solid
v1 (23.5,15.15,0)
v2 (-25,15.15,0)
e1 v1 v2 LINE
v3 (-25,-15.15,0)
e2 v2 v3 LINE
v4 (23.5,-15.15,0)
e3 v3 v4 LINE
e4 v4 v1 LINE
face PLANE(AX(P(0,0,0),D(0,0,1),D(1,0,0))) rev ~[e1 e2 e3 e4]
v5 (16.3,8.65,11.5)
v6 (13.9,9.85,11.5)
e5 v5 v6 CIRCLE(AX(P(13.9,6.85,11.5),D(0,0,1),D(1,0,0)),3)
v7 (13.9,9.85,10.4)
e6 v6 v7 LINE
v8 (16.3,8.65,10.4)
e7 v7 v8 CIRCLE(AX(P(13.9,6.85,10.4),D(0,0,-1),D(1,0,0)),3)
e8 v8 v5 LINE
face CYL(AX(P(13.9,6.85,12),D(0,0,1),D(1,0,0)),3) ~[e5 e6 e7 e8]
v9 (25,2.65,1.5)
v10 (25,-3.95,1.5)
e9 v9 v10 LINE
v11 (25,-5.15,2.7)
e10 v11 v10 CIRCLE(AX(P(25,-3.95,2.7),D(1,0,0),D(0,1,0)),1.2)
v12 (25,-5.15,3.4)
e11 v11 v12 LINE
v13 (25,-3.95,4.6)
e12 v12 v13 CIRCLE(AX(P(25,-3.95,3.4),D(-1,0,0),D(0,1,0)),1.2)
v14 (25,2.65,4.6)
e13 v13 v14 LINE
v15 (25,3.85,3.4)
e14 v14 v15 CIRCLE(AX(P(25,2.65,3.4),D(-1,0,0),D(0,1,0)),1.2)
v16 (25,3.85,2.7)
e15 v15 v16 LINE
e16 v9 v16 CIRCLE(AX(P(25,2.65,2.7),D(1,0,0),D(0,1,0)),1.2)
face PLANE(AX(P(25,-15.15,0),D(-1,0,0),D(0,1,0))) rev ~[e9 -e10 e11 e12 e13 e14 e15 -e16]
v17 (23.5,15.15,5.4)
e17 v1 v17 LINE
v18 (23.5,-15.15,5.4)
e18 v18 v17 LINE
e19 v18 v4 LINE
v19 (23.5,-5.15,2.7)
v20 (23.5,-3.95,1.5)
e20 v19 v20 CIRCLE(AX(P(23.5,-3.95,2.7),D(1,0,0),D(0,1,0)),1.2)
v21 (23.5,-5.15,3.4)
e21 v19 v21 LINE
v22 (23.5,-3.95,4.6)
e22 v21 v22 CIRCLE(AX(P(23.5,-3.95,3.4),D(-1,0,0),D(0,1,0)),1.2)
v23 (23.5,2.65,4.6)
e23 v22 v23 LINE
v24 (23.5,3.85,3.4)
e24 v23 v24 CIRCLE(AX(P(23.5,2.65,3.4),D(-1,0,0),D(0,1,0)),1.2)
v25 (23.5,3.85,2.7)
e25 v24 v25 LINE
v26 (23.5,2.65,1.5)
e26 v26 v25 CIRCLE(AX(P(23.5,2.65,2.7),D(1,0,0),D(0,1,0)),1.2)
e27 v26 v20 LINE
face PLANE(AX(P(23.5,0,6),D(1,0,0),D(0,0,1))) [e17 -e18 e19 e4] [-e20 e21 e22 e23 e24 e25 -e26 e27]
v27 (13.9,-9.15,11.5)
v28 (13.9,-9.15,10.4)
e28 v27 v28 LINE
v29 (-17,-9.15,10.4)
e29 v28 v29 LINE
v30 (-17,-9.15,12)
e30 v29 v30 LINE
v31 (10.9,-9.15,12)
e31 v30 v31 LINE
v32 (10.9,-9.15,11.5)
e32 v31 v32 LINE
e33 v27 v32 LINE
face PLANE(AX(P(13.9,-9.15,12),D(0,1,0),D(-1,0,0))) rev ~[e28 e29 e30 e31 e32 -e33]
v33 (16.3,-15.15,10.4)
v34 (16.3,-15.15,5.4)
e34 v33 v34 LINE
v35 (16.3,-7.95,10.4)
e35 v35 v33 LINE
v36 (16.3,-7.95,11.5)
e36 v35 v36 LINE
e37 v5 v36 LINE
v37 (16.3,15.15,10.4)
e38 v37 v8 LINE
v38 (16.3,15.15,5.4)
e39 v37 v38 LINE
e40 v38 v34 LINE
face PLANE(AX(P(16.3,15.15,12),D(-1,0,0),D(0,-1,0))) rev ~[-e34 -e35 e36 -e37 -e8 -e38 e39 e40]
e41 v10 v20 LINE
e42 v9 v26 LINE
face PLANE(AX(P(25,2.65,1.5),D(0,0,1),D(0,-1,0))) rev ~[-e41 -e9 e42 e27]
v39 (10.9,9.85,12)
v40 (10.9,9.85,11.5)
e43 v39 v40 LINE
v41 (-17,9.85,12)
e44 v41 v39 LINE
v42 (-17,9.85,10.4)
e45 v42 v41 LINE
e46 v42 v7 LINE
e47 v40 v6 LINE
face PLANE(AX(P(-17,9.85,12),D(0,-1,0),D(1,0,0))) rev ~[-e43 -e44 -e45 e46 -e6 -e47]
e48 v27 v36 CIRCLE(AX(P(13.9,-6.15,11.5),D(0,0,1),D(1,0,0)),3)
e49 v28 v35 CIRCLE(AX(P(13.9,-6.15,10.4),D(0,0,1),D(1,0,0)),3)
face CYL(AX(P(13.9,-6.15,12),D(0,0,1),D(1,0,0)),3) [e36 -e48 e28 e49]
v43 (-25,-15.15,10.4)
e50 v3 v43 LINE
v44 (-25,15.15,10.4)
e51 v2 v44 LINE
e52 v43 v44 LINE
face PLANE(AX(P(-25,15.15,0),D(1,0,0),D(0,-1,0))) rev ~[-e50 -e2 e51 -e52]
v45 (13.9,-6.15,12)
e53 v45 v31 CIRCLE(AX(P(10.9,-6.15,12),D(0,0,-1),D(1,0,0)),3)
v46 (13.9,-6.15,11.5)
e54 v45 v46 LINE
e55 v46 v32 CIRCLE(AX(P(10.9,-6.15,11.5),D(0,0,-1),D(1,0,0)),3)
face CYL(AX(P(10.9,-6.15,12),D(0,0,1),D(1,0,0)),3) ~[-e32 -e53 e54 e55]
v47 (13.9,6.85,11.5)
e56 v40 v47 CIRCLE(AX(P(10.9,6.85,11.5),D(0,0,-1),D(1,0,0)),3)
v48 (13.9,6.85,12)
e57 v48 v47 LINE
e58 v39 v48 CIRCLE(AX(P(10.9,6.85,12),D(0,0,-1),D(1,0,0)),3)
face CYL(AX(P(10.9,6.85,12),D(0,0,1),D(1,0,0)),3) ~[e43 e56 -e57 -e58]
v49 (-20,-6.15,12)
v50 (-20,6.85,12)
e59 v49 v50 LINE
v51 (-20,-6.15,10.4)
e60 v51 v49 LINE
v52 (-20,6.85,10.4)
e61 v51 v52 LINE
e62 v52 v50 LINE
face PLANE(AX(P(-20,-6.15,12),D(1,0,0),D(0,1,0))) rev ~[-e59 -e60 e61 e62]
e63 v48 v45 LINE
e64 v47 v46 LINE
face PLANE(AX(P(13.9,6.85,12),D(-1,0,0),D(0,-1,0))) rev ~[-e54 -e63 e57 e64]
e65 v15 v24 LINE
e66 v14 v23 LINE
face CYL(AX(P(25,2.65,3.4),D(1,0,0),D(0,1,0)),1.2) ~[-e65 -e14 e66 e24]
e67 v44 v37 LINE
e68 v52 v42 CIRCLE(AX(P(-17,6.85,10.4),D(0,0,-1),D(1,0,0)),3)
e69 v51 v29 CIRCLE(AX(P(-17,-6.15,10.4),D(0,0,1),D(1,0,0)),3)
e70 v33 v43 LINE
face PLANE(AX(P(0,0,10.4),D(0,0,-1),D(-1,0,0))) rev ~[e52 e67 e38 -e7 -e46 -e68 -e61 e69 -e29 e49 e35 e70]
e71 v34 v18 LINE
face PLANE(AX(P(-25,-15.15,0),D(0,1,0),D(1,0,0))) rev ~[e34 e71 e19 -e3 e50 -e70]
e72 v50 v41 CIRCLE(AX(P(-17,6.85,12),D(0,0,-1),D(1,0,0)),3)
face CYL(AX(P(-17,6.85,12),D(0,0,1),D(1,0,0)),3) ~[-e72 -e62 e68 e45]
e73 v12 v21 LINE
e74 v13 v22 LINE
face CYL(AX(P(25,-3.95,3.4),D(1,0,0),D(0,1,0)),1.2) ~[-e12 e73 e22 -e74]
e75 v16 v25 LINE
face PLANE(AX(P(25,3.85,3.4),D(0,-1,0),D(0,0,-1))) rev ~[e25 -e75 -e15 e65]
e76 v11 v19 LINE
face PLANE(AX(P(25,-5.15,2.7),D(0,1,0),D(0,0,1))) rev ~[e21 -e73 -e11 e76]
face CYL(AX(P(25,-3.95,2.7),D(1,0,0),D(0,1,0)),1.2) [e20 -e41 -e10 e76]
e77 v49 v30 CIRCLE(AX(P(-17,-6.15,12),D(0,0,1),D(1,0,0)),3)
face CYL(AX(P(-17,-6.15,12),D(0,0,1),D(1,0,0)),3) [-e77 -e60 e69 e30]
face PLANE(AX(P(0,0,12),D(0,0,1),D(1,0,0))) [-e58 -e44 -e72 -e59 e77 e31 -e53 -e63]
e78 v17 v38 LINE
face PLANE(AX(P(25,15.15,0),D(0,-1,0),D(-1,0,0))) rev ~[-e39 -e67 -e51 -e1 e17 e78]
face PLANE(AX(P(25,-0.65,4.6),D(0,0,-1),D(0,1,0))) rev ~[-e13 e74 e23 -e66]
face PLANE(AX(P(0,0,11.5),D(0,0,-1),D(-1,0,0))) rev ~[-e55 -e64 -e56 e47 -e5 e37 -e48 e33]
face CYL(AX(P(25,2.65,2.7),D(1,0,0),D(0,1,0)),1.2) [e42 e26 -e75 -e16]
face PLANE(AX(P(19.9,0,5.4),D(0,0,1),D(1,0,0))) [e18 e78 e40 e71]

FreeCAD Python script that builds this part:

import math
import FreeCAD as App
import Part
import Sketcher
from FreeCAD import Vector

doc = App.newDocument("Part")
params = doc.addObject("Spreadsheet::Sheet", "Params")
for row, (alias, value) in enumerate([
    ("sketch1_width", "50 mm"),
    ("sketch1_height", "30.3 mm"),
    ("pad1_length", "12 mm"),
    ("sketch2_radius", "1.2 mm"),
    ("sketch2_height", "12 mm"),
    ("sketch2_width", "30.3 mm"),
    ("sketch2_width2", "6.6 mm"),
    ("sketch2_height2", "0.7 mm"),
    ("pocket1_length", "1.5 mm"),
    ("sketch3_width", "7.2 mm"),
    ("sketch3_height", "30.3 mm"),
    ("pocket2_length", "6.6 mm"),
    ("sketch4_radius", "3 mm"),
    ("sketch4_height", "13 mm"),
    ("sketch4_width", "30.9 mm"),
    ("pocket3_length", "1.6 mm"),
    ("sketch5_radius", "3 mm"),
    ("sketch5_height", "13 mm"),
    ("sketch5_width", "27.9 mm"),
    ("pocket4_length", "0.5 mm"),
], start=1):
    params.set(f"A{row}", alias)
    params.set(f"B{row}", "=" + value)
    params.setAlias(f"B{row}", alias)

body = doc.addObject("PartDesign::Body", "Body")

# Sketch on XY plane
sketch1 = body.newObject("Sketcher::SketchObject", "Sketch")
sketch1.AttachmentSupport = (doc.getObject("XY_Plane"), [""])
sketch1.MapMode = "FlatFace"
sketch1.addGeometry(Part.LineSegment(Vector(-25, 15.15, 0), Vector(-25, -15.15, 0)), False)
sketch1.addGeometry(Part.LineSegment(Vector(-25, -15.15, 0), Vector(25, -15.15, 0)), False)
sketch1.addGeometry(Part.LineSegment(Vector(25, -15.15, 0), Vector(25, 15.15, 0)), False)
sketch1.addGeometry(Part.LineSegment(Vector(25, 15.15, 0), Vector(-25, 15.15, 0)), False)
sketch1.addConstraint(Sketcher.Constraint("Coincident", 0, 2, 1, 1))
sketch1.addConstraint(Sketcher.Constraint("Coincident", 1, 2, 2, 1))
sketch1.addConstraint(Sketcher.Constraint("Coincident", 2, 2, 3, 1))
sketch1.addConstraint(Sketcher.Constraint("Coincident", 3, 2, 0, 1))
sketch1.addConstraint(Sketcher.Constraint("Vertical", 0))
sketch1.addConstraint(Sketcher.Constraint("Horizontal", 1))
sketch1.addConstraint(Sketcher.Constraint("Vertical", 2))
sketch1.addConstraint(Sketcher.Constraint("Horizontal", 3))
sketch1.addConstraint(Sketcher.Constraint("Symmetric", 0, 2, 2, 2, -1, 1))
sketch1.addConstraint(Sketcher.Constraint("DistanceX", 1, 1, 1, 2, 50.0))
sketch1.addConstraint(Sketcher.Constraint("DistanceY", 0, 2, 0, 1, 30.3))
sketch1.setExpression("Constraints[9]", "Params.sketch1_width")
sketch1.setExpression("Constraints[10]", "Params.sketch1_height")
pad1 = body.newObject("PartDesign::Pad", "Pad")
pad1.Profile = sketch1
pad1.setExpression("Length", "Params.pad1_length")

# Sketch on YZ plane
sketch2 = body.newObject("Sketcher::SketchObject", "Sketch001")
sketch2.AttachmentSupport = (doc.getObject("YZ_Plane"), [""])
sketch2.MapMode = "FlatFace"
sketch2.AttachmentOffset = App.Placement(Vector(0, 0, 25), App.Rotation())
sketch2.addGeometry(Part.LineSegment(Vector(-15.15, 12, 0), Vector(-15.15, 0, 0)), False)
sketch2.addGeometry(Part.LineSegment(Vector(-15.15, 0, 0), Vector(15.15, 0, 0)), False)
sketch2.addGeometry(Part.LineSegment(Vector(15.15, 0, 0), Vector(15.15, 12, 0)), False)
sketch2.addGeometry(Part.LineSegment(Vector(15.15, 12, 0), Vector(-15.15, 12, 0)), False)
sketch2.addGeometry(Part.LineSegment(Vector(-3.95, 4.6, 0), Vector(2.65, 4.6, 0)), False)
sketch2.addGeometry(Part.ArcOfCircle(Part.Circle(Vector(2.65, 3.4, 0), Vector(0, 0, 1), 1.2), math.radians(0), math.radians(90)), False)
sketch2.addGeometry(Part.LineSegment(Vector(3.85, 3.4, 0), Vector(3.85, 2.7, 0)), False)
sketch2.addGeometry(Part.ArcOfCircle(Part.Circle(Vector(2.65, 2.7, 0), Vector(0, 0, 1), 1.2), math.radians(-90), math.radians(0)), False)
sketch2.addGeometry(Part.LineSegment(Vector(2.65, 1.5, 0), Vector(-3.95, 1.5, 0)), False)
sketch2.addGeometry(Part.ArcOfCircle(Part.Circle(Vector(-3.95, 2.7, 0), Vector(0, 0, 1), 1.2), math.radians(180), math.radians(270)), False)
sketch2.addGeometry(Part.LineSegment(Vector(-5.15, 2.7, 0), Vector(-5.15, 3.4, 0)), False)
sketch2.addGeometry(Part.ArcOfCircle(Part.Circle(Vector(-3.95, 3.4, 0), Vector(0, 0, 1), 1.2), math.radians(90), math.radians(180)), False)
sketch2.addConstraint(Sketcher.Constraint("Coincident", 0, 2, 1, 1))
sketch2.addConstraint(Sketcher.Constraint("Coincident", 1, 2, 2, 1))
sketch2.addConstraint(Sketcher.Constraint("Coincident", 2, 2, 3, 1))
sketch2.addConstraint(Sketcher.Constraint("Coincident", 3, 2, 0, 1))
sketch2.addConstraint(Sketcher.Constraint("Tangent", 4, 2, 5, 2))
sketch2.addConstraint(Sketcher.Constraint("Tangent", 5, 1, 6, 1))
sketch2.addConstraint(Sketcher.Constraint("Tangent", 6, 2, 7, 2))
sketch2.addConstraint(Sketcher.Constraint("Tangent", 7, 1, 8, 1))
sketch2.addConstraint(Sketcher.Constraint("Tangent", 8, 2, 9, 2))
sketch2.addConstraint(Sketcher.Constraint("Tangent", 9, 1, 10, 1))
sketch2.addConstraint(Sketcher.Constraint("Tangent", 10, 2, 11, 2))
sketch2.addConstraint(Sketcher.Constraint("Tangent", 11, 1, 4, 1))
sketch2.addConstraint(Sketcher.Constraint("Vertical", 0))
sketch2.addConstraint(Sketcher.Constraint("Horizontal", 1))
sketch2.addConstraint(Sketcher.Constraint("Vertical", 2))
sketch2.addConstraint(Sketcher.Constraint("Horizontal", 3))
sketch2.addConstraint(Sketcher.Constraint("Horizontal", 4))
sketch2.addConstraint(Sketcher.Constraint("Vertical", 6))
sketch2.addConstraint(Sketcher.Constraint("Horizontal", 8))
sketch2.addConstraint(Sketcher.Constraint("Vertical", 10))
sketch2.addConstraint(Sketcher.Constraint("Equal", 5, 7))
sketch2.addConstraint(Sketcher.Constraint("Equal", 7, 9))
sketch2.addConstraint(Sketcher.Constraint("Equal", 9, 11))
sketch2.addConstraint(Sketcher.Constraint("Symmetric", 0, 2, 1, 2, -1, 1))
sketch2.addConstraint(Sketcher.Constraint("Radius", 5, 1.2))
sketch2.addConstraint(Sketcher.Constraint("DistanceY", 0, 2, 0, 1, 12.0))
sketch2.addConstraint(Sketcher.Constraint("DistanceX", 1, 1, 1, 2, 30.3))
sketch2.addConstraint(Sketcher.Constraint("DistanceX", 4, 1, 4, 2, 6.6))
sketch2.addConstraint(Sketcher.Constraint("DistanceY", 6, 2, 6, 1, 0.7))
sketch2.addConstraint(Sketcher.Constraint("DistanceY", -1, 1, 5, 3, 3.4))
sketch2.addConstraint(Sketcher.Constraint("DistanceX", 0, 2, 9, 3, 11.2))
sketch2.setExpression("Constraints[24]", "Params.sketch2_radius")
sketch2.setExpression("Constraints[25]", "Params.sketch2_height")
sketch2.setExpression("Constraints[26]", "Params.sketch2_width")
sketch2.setExpression("Constraints[27]", "Params.sketch2_width2")
sketch2.setExpression("Constraints[28]", "Params.sketch2_height2")
pocket1 = body.newObject("PartDesign::Pocket", "Pocket")
pocket1.Profile = sketch2
pocket1.setExpression("Length", "Params.pocket1_length")

# Sketch on XY plane
sketch3 = body.newObject("Sketcher::SketchObject", "Sketch002")
sketch3.AttachmentSupport = (doc.getObject("XY_Plane"), [""])
sketch3.MapMode = "FlatFace"
sketch3.AttachmentOffset = App.Placement(Vector(0, 0, 12), App.Rotation())
sketch3.addGeometry(Part.LineSegment(Vector(23.5, 15.15, 0), Vector(16.3, 15.15, 0)), False)
sketch3.addGeometry(Part.LineSegment(Vector(16.3, 15.15, 0), Vector(16.3, -15.15, 0)), False)
sketch3.addGeometry(Part.LineSegment(Vector(16.3, -15.15, 0), Vector(23.5, -15.15, 0)), False)
sketch3.addGeometry(Part.LineSegment(Vector(23.5, -15.15, 0), Vector(23.5, 15.15, 0)), False)
sketch3.addConstraint(Sketcher.Constraint("Coincident", 0, 2, 1, 1))
sketch3.addConstraint(Sketcher.Constraint("Coincident", 1, 2, 2, 1))
sketch3.addConstraint(Sketcher.Constraint("Coincident", 2, 2, 3, 1))
sketch3.addConstraint(Sketcher.Constraint("Coincident", 3, 2, 0, 1))
sketch3.addConstraint(Sketcher.Constraint("Horizontal", 0))
sketch3.addConstraint(Sketcher.Constraint("Vertical", 1))
sketch3.addConstraint(Sketcher.Constraint("Horizontal", 2))
sketch3.addConstraint(Sketcher.Constraint("Vertical", 3))
sketch3.addConstraint(Sketcher.Constraint("DistanceX", 0, 2, 0, 1, 7.2))
sketch3.addConstraint(Sketcher.Constraint("DistanceY", 1, 2, 1, 1, 30.3))
sketch3.addConstraint(Sketcher.Constraint("DistanceX", -1, 1, 0, 2, 16.3))
sketch3.addConstraint(Sketcher.Constraint("DistanceY", -1, 1, 0, 2, 15.15))
sketch3.setExpression("Constraints[8]", "Params.sketch3_width")
sketch3.setExpression("Constraints[9]", "Params.sketch3_height")
pocket2 = body.newObject("PartDesign::Pocket", "Pocket001")
pocket2.Profile = sketch3
pocket2.setExpression("Length", "Params.pocket2_length")

# Sketch on XY plane
sketch4 = body.newObject("Sketcher::SketchObject", "Sketch003")
sketch4.AttachmentSupport = (doc.getObject("XY_Plane"), [""])
sketch4.MapMode = "FlatFace"
sketch4.AttachmentOffset = App.Placement(Vector(0, 0, 12), App.Rotation())
sketch4.addGeometry(Part.LineSegment(Vector(32.4647, 19.5962, 0), Vector(-32.4647, 19.5962, 0)), False)
sketch4.addGeometry(Part.LineSegment(Vector(-32.4647, 19.5962, 0), Vector(-32.4647, -19.5962, 0)), False)
sketch4.addGeometry(Part.LineSegment(Vector(-32.4647, -19.5962, 0), Vector(32.4647, -19.5962, 0)), False)
sketch4.addGeometry(Part.LineSegment(Vector(32.4647, -19.5962, 0), Vector(32.4647, 19.5962, 0)), False)
sketch4.addGeometry(Part.LineSegment(Vector(13.9, -9.15, 0), Vector(-17, -9.15, 0)), False)
sketch4.addGeometry(Part.ArcOfCircle(Part.Circle(Vector(-17, -6.15, 0), Vector(0, 0, 1), 3), math.radians(180), math.radians(270)), False)
sketch4.addGeometry(Part.LineSegment(Vector(-20, -6.15, 0), Vector(-20, 6.85, 0)), False)
sketch4.addGeometry(Part.ArcOfCircle(Part.Circle(Vector(-17, 6.85, 0), Vector(0, 0, 1), 3), math.radians(90), math.radians(180)), False)
sketch4.addGeometry(Part.LineSegment(Vector(-17, 9.85, 0), Vector(13.9, 9.85, 0)), False)
sketch4.addGeometry(Part.ArcOfCircle(Part.Circle(Vector(13.9, 6.85, 0), Vector(0, 0, 1), 3), math.radians(0), math.radians(90)), False)
sketch4.addGeometry(Part.LineSegment(Vector(16.9, 6.85, 0), Vector(16.9, -6.15, 0)), False)
sketch4.addGeometry(Part.ArcOfCircle(Part.Circle(Vector(13.9, -6.15, 0), Vector(0, 0, 1), 3), math.radians(-90), math.radians(0)), False)
sketch4.addConstraint(Sketcher.Constraint("Coincident", 0, 2, 1, 1))
sketch4.addConstraint(Sketcher.Constraint("Coincident", 1, 2, 2, 1))
sketch4.addConstraint(Sketcher.Constraint("Coincident", 2, 2, 3, 1))
sketch4.addConstraint(Sketcher.Constraint("Coincident", 3, 2, 0, 1))
sketch4.addConstraint(Sketcher.Constraint("Tangent", 4, 2, 5, 2))
sketch4.addConstraint(Sketcher.Constraint("Tangent", 5, 1, 6, 1))
sketch4.addConstraint(Sketcher.Constraint("Tangent", 6, 2, 7, 2))
sketch4.addConstraint(Sketcher.Constraint("Tangent", 7, 1, 8, 1))
sketch4.addConstraint(Sketcher.Constraint("Tangent", 8, 2, 9, 2))
sketch4.addConstraint(Sketcher.Constraint("Tangent", 9, 1, 10, 1))
sketch4.addConstraint(Sketcher.Constraint("Tangent", 10, 2, 11, 2))
sketch4.addConstraint(Sketcher.Constraint("Tangent", 11, 1, 4, 1))
sketch4.addConstraint(Sketcher.Constraint("Horizontal", 0))
sketch4.addConstraint(Sketcher.Constraint("Vertical", 1))
sketch4.addConstraint(Sketcher.Constraint("Horizontal", 2))
sketch4.addConstraint(Sketcher.Constraint("Vertical", 3))
sketch4.addConstraint(Sketcher.Constraint("Horizontal", 4))
sketch4.addConstraint(Sketcher.Constraint("Vertical", 6))
sketch4.addConstraint(Sketcher.Constraint("Horizontal", 8))
sketch4.addConstraint(Sketcher.Constraint("Vertical", 10))
sketch4.addConstraint(Sketcher.Constraint("Equal", 5, 7))
sketch4.addConstraint(Sketcher.Constraint("Equal", 7, 9))
sketch4.addConstraint(Sketcher.Constraint("Equal", 9, 11))
sketch4.addConstraint(Sketcher.Constraint("Symmetric", 0, 2, 2, 2, -1, 1))
sketch4.addConstraint(Sketcher.Constraint("Radius", 5, 3.0))
sketch4.addConstraint(Sketcher.Constraint("DistanceY", 6, 1, 6, 2, 13.0))
sketch4.addConstraint(Sketcher.Constraint("DistanceX", 4, 2, 4, 1, 30.9))
sketch4.addConstraint(Sketcher.Constraint("DistanceX", 5, 3, -1, 1, 17.0))
sketch4.addConstraint(Sketcher.Constraint("DistanceY", 5, 3, -1, 1, 6.15))
sketch4.addConstraint(Sketcher.Constraint("DistanceX", 0, 2, 0, 1, 64.9294))
sketch4.addConstraint(Sketcher.Constraint("DistanceY", 1, 2, 1, 1, 39.1924))
sketch4.setExpression("Constraints[24]", "Params.sketch4_radius")
sketch4.setExpression("Constraints[25]", "Params.sketch4_height")
sketch4.setExpression("Constraints[26]", "Params.sketch4_width")
pocket3 = body.newObject("PartDesign::Pocket", "Pocket002")
pocket3.Profile = sketch4
pocket3.setExpression("Length", "Params.pocket3_length")

# Sketch on XY plane
sketch5 = body.newObject("Sketcher::SketchObject", "Sketch004")
sketch5.AttachmentSupport = (doc.getObject("XY_Plane"), [""])
sketch5.MapMode = "FlatFace"
sketch5.AttachmentOffset = App.Placement(Vector(0, 0, 12), App.Rotation())
sketch5.addGeometry(Part.LineSegment(Vector(31.4076, 18.7434, 0), Vector(-31.4076, 18.7434, 0)), False)
sketch5.addGeometry(Part.LineSegment(Vector(-31.4076, 18.7434, 0), Vector(-31.4076, -18.7434, 0)), False)
sketch5.addGeometry(Part.LineSegment(Vector(-31.4076, -18.7434, 0), Vector(31.4076, -18.7434, 0)), False)
sketch5.addGeometry(Part.LineSegment(Vector(31.4076, -18.7434, 0), Vector(31.4076, 18.7434, 0)), False)
sketch5.addGeometry(Part.LineSegment(Vector(-20, -6.15, 0), Vector(-20, 6.85, 0)), False)
sketch5.addGeometry(Part.ArcOfCircle(Part.Circle(Vector(-17, 6.85, 0), Vector(0, 0, 1), 3), math.radians(90), math.radians(180)), False)
sketch5.addGeometry(Part.LineSegment(Vector(-17, 9.85, 0), Vector(10.9, 9.85, 0)), False)
sketch5.addGeometry(Part.ArcOfCircle(Part.Circle(Vector(10.9, 6.85, 0), Vector(0, 0, 1), 3), math.radians(0), math.radians(90)), False)
sketch5.addGeometry(Part.LineSegment(Vector(13.9, 6.85, 0), Vector(13.9, -6.15, 0)), False)
sketch5.addGeometry(Part.ArcOfCircle(Part.Circle(Vector(10.9, -6.15, 0), Vector(0, 0, 1), 3), math.radians(-90), math.radians(0)), False)
sketch5.addGeometry(Part.LineSegment(Vector(10.9, -9.15, 0), Vector(-17, -9.15, 0)), False)
sketch5.addGeometry(Part.ArcOfCircle(Part.Circle(Vector(-17, -6.15, 0), Vector(0, 0, 1), 3), math.radians(180), math.radians(270)), False)
sketch5.addConstraint(Sketcher.Constraint("Coincident", 0, 2, 1, 1))
sketch5.addConstraint(Sketcher.Constraint("Coincident", 1, 2, 2, 1))
sketch5.addConstraint(Sketcher.Constraint("Coincident", 2, 2, 3, 1))
sketch5.addConstraint(Sketcher.Constraint("Coincident", 3, 2, 0, 1))
sketch5.addConstraint(Sketcher.Constraint("Tangent", 4, 2, 5, 2))
sketch5.addConstraint(Sketcher.Constraint("Tangent", 5, 1, 6, 1))
sketch5.addConstraint(Sketcher.Constraint("Tangent", 6, 2, 7, 2))
sketch5.addConstraint(Sketcher.Constraint("Tangent", 7, 1, 8, 1))
sketch5.addConstraint(Sketcher.Constraint("Tangent", 8, 2, 9, 2))
sketch5.addConstraint(Sketcher.Constraint("Tangent", 9, 1, 10, 1))
sketch5.addConstraint(Sketcher.Constraint("Tangent", 10, 2, 11, 2))
sketch5.addConstraint(Sketcher.Constraint("Tangent", 11, 1, 4, 1))
sketch5.addConstraint(Sketcher.Constraint("Horizontal", 0))
sketch5.addConstraint(Sketcher.Constraint("Vertical", 1))
sketch5.addConstraint(Sketcher.Constraint("Horizontal", 2))
sketch5.addConstraint(Sketcher.Constraint("Vertical", 3))
sketch5.addConstraint(Sketcher.Constraint("Vertical", 4))
sketch5.addConstraint(Sketcher.Constraint("Horizontal", 6))
sketch5.addConstraint(Sketcher.Constraint("Vertical", 8))
sketch5.addConstraint(Sketcher.Constraint("Horizontal", 10))
sketch5.addConstraint(Sketcher.Constraint("Equal", 5, 7))
sketch5.addConstraint(Sketcher.Constraint("Equal", 7, 9))
sketch5.addConstraint(Sketcher.Constraint("Equal", 9, 11))
sketch5.addConstraint(Sketcher.Constraint("Symmetric", 0, 2, 2, 2, -1, 1))
sketch5.addConstraint(Sketcher.Constraint("Radius", 5, 3.0))
sketch5.addConstraint(Sketcher.Constraint("DistanceY", 4, 1, 4, 2, 13.0))
sketch5.addConstraint(Sketcher.Constraint("DistanceX", 6, 1, 6, 2, 27.9))
sketch5.addConstraint(Sketcher.Constraint("DistanceX", 5, 3, -1, 1, 17.0))
sketch5.addConstraint(Sketcher.Constraint("DistanceY", -1, 1, 5, 3, 6.85))
sketch5.addConstraint(Sketcher.Constraint("DistanceX", 0, 2, 0, 1, 62.8152))
sketch5.addConstraint(Sketcher.Constraint("DistanceY", 1, 2, 1, 1, 37.4868))
sketch5.setExpression("Constraints[24]", "Params.sketch5_radius")
sketch5.setExpression("Constraints[25]", "Params.sketch5_height")
sketch5.setExpression("Constraints[26]", "Params.sketch5_width")
pocket4 = body.newObject("PartDesign::Pocket", "Pocket003")
pocket4.Profile = sketch5
pocket4.setExpression("Length", "Params.pocket4_length")

doc.recompute()
